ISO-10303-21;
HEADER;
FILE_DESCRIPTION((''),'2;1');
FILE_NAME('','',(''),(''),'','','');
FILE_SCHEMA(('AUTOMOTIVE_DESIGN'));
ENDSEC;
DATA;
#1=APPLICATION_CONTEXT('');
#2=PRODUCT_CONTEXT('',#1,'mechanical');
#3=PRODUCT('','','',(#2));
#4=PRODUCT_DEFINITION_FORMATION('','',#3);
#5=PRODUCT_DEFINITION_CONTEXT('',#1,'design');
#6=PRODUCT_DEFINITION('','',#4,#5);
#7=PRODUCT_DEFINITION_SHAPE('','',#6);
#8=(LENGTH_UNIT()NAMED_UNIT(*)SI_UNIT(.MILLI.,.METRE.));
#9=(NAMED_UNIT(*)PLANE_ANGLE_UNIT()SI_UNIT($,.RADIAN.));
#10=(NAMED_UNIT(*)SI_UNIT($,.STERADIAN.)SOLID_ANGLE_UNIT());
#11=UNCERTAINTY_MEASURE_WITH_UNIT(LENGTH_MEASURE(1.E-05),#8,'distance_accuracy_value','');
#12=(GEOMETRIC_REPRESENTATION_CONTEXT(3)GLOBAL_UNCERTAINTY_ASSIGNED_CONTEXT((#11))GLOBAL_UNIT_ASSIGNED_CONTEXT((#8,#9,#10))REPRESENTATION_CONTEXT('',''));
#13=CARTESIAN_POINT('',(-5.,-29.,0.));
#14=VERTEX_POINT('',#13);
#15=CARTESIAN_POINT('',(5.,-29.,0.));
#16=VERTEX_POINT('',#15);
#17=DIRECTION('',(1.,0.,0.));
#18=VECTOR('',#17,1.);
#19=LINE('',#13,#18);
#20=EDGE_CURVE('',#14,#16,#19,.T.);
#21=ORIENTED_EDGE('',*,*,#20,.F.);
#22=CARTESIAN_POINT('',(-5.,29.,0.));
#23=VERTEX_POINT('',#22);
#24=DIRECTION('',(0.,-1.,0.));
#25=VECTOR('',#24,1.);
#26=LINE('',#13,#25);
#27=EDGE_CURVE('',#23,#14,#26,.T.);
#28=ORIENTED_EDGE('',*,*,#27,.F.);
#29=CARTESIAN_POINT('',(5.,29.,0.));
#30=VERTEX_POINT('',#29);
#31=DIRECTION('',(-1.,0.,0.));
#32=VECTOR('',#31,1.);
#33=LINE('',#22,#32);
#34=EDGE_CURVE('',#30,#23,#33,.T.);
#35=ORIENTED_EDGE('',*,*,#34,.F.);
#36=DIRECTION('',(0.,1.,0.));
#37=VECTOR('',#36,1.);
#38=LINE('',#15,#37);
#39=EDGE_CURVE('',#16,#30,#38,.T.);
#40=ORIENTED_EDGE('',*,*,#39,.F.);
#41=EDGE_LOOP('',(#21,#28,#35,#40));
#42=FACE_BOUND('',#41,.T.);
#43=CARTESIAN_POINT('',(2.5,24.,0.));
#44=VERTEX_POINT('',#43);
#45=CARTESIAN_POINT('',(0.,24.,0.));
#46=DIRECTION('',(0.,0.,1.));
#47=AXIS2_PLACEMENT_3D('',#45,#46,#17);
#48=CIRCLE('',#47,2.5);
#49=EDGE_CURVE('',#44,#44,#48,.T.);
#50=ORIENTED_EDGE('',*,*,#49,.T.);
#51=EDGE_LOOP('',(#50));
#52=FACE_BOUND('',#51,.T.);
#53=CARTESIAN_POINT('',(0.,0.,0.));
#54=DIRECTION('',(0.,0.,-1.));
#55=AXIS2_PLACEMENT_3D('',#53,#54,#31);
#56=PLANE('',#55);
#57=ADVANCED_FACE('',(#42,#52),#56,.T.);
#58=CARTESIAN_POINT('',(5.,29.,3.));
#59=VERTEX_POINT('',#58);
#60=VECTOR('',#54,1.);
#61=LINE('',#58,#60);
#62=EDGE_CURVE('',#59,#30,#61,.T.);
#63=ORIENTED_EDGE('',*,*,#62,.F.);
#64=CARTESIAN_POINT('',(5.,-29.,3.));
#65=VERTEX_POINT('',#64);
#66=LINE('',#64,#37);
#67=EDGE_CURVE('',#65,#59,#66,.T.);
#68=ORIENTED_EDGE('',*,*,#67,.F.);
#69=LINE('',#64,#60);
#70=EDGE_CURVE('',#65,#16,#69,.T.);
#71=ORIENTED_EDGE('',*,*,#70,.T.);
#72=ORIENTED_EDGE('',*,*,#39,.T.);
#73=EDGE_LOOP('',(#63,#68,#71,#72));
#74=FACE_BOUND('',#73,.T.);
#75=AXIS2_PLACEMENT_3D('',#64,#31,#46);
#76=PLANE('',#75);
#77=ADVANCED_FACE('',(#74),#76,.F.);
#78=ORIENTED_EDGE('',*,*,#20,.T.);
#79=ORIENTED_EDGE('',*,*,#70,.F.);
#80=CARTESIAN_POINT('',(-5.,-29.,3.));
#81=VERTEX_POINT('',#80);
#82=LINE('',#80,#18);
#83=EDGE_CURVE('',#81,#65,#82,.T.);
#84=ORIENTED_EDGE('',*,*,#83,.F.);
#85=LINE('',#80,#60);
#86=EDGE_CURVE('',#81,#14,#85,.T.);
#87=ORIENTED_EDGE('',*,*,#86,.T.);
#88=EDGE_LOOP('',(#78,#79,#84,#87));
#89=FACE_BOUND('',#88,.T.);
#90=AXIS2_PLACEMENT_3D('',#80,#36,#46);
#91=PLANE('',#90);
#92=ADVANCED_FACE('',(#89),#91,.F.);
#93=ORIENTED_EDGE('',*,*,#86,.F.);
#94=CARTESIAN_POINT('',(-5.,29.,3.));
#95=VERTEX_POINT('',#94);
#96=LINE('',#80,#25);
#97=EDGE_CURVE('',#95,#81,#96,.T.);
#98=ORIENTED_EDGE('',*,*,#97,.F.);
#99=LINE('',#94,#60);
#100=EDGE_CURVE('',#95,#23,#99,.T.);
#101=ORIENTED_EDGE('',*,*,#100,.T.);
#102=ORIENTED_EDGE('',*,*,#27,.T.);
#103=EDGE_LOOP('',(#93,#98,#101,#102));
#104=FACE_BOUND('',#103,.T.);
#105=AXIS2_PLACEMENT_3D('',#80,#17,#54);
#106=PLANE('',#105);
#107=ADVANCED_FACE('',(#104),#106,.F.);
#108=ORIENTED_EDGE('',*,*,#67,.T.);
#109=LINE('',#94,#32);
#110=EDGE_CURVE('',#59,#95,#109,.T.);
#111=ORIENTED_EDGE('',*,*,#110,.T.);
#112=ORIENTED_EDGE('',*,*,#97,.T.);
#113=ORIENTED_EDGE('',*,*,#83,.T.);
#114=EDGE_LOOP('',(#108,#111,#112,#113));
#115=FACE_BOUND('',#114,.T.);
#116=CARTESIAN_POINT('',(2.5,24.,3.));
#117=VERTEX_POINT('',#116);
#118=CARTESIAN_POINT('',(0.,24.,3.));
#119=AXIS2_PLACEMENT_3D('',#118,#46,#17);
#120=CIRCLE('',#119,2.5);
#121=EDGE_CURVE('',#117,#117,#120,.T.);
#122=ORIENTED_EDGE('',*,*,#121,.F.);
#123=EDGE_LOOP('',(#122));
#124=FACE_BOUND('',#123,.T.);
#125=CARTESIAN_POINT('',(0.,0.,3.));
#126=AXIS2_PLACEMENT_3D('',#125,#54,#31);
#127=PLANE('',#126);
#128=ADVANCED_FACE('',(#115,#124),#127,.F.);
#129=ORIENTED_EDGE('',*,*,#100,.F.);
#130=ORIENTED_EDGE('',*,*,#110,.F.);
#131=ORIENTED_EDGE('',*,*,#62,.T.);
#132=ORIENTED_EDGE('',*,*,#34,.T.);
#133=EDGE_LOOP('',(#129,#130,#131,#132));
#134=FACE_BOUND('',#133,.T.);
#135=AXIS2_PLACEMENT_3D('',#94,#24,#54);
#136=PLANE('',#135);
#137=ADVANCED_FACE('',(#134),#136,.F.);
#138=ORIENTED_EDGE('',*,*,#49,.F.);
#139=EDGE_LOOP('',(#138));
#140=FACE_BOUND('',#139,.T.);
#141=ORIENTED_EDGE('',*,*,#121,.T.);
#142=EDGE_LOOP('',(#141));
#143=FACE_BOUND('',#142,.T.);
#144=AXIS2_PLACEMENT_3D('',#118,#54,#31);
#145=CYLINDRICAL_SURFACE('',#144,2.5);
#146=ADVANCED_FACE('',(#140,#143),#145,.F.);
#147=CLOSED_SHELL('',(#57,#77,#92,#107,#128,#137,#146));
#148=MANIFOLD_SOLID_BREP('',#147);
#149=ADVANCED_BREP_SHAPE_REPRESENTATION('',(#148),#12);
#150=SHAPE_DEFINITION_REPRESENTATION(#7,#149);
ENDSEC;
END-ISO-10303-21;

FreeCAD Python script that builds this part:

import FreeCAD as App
import Part
import Sketcher
from FreeCAD import Vector
Q = App.Units.Quantity


def add_polygon(sketch, points):
    """Adds a closed chain of lines whose ends are joined by coincident constraints."""
    first, n = sketch.GeometryCount, len(points)
    for a, b in zip(points, points[1:] + points[:1]):
        sketch.addGeometry(Part.LineSegment(App.Vector(*a, 0), App.Vector(*b, 0)), False)
    for i in range(n):
        sketch.addConstraint(Sketcher.Constraint("Coincident", first + i, 2, first + (i + 1) % n, 1))

doc = App.newDocument("Part")
body = doc.addObject("PartDesign::Body", "Body")

sketch1 = doc.addObject("Sketcher::SketchObject", "Sketch")
body.addObject(sketch1)
sketch1.AttachmentSupport = (doc.XY_Plane, [""])
sketch1.MapMode = "FlatFace"
add_polygon(sketch1, [(-5, 29), (-5, -29), (5, -29), (5, 29)])
sketch1.addGeometry(Part.Circle(Vector(0, 24, 0), Vector(0, 0, 1), 2.5), False)
sketch1.addConstraint([
    Sketcher.Constraint("Vertical", 0),
    Sketcher.Constraint("Horizontal", 1),
    Sketcher.Constraint("Vertical", 2),
    Sketcher.Constraint("Horizontal", 3),
    Sketcher.Constraint("Symmetric", 0, 2, 2, 2, -1, 1),
    Sketcher.Constraint("PointOnObject", 4, 3, -2),
    Sketcher.Constraint("Diameter", 4, Q("5 mm")),
    Sketcher.Constraint("DistanceX", 1, 1, 1, 2, Q("10 mm")),
    Sketcher.Constraint("DistanceY", 0, 2, 0, 1, Q("58 mm")),
    Sketcher.Constraint("DistanceY", -1, 1, 4, 3, Q("24 mm")),
])
pad1 = doc.addObject("PartDesign::Pad", "Pad")
body.addObject(pad1)
pad1.Profile = sketch1
pad1.Length = 3

doc.recompute()
